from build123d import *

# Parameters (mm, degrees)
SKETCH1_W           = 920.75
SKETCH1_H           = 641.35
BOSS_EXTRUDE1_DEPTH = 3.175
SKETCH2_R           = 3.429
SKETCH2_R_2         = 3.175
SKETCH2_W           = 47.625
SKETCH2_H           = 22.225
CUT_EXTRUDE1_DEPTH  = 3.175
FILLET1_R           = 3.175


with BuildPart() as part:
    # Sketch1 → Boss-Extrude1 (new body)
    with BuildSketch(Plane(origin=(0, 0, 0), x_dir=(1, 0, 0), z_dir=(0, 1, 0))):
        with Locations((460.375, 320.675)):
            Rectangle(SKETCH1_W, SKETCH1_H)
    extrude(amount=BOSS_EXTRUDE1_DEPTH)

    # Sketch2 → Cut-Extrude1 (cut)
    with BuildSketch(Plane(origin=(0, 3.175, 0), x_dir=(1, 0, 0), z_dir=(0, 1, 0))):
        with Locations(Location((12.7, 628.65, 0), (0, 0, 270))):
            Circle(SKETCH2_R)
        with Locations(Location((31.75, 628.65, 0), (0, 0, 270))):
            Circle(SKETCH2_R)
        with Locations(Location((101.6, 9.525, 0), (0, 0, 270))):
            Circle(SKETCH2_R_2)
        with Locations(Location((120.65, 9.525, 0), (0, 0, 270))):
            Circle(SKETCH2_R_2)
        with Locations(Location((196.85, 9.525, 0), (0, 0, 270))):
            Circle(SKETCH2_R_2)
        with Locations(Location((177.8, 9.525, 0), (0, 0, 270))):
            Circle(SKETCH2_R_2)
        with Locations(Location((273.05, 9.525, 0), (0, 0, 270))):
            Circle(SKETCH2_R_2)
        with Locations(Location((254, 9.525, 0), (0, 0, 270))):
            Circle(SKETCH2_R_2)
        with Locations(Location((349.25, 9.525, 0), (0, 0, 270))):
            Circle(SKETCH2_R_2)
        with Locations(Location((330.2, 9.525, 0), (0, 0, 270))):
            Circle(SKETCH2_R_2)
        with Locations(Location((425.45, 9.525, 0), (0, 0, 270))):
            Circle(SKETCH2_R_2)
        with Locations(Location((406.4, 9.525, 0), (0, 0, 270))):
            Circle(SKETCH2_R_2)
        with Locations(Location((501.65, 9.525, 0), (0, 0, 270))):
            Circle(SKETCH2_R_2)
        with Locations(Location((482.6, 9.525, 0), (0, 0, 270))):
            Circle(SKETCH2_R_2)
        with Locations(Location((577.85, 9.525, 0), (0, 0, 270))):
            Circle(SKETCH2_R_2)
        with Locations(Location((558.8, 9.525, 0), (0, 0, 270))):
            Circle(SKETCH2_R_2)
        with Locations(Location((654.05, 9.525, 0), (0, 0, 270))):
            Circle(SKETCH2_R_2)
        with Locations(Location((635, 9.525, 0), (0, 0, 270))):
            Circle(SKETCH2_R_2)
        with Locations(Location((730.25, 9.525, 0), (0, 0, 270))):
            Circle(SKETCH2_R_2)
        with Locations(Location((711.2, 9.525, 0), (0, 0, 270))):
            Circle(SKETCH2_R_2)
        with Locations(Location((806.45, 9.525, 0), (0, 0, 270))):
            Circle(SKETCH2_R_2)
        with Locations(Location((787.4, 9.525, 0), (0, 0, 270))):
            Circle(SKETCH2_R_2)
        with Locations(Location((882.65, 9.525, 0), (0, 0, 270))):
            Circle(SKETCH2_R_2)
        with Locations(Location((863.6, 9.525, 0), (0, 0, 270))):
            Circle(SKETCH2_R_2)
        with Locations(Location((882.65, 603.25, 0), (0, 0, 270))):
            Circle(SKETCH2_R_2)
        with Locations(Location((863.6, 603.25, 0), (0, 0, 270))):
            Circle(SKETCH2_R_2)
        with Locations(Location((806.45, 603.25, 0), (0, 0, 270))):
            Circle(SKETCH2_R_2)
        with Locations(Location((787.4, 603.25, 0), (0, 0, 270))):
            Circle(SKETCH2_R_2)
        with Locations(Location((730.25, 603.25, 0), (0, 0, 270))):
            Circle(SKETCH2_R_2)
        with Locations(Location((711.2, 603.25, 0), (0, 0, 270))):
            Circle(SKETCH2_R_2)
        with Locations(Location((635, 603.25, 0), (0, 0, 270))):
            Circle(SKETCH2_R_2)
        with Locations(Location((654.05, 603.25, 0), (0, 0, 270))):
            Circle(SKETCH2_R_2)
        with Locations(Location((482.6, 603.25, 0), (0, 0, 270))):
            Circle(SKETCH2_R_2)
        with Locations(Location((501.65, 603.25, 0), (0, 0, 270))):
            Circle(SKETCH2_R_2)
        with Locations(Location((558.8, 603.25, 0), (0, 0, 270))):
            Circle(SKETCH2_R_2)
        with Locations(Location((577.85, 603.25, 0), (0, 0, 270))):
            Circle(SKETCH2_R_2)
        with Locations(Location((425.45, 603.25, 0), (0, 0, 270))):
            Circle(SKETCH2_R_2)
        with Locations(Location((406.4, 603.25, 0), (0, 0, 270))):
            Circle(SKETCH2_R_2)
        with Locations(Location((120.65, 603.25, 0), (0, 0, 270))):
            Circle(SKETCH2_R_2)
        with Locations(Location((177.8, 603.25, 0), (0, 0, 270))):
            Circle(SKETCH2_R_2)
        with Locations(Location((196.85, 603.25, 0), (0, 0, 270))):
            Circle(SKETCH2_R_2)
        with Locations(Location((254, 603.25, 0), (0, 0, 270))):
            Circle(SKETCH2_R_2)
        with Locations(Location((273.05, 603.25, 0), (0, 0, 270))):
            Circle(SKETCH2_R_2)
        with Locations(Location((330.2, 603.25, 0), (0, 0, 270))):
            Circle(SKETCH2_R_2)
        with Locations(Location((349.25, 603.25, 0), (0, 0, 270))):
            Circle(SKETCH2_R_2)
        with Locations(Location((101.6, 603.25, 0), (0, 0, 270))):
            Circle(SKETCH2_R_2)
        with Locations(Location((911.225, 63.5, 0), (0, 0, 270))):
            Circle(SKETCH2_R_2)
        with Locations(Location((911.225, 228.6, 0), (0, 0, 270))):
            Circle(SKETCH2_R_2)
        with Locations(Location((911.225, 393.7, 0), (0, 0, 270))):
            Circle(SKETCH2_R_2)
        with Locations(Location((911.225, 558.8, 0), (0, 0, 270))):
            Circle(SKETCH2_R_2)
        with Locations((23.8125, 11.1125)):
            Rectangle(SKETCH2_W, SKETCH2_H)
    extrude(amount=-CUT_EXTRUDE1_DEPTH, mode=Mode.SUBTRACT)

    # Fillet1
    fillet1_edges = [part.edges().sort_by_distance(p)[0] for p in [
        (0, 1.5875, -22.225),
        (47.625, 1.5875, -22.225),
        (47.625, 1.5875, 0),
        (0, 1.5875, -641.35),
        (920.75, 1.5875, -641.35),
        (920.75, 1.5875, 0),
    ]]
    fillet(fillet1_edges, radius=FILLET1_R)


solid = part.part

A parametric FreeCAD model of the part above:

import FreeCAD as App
import Part
import Sketcher

V = App.Vector
Q = App.Units.Quantity


def edges_at(feature, points):
    """Names of the edges that pass closest to the given points."""
    edges = feature.Shape.Edges
    near = lambda p: min(range(len(edges)), key=lambda i: edges[i].distToShape(Part.Vertex(*p))[0])
    return sorted({f"Edge{near(p) + 1}" for p in points})

doc = App.newDocument("Part")
body = doc.addObject("PartDesign::Body", "Body")

# Sketch on XZ plane
sketch1 = doc.addObject("Sketcher::SketchObject", "Sketch")
body.addObject(sketch1)
sketch1.AttachmentSupport = (doc.XZ_Plane, [""])
sketch1.MapMode = "FlatFace"
sketch1.addGeometry(Part.LineSegment(V(0, -641, 0), V(0, 0, 0)), False)
sketch1.addGeometry(Part.LineSegment(V(0, 0, 0), V(921, 0, 0)), False)
sketch1.addGeometry(Part.LineSegment(V(921, 0, 0), V(921, -641, 0)), False)
sketch1.addGeometry(Part.LineSegment(V(921, -641, 0), V(0, -641, 0)), False)
sketch1.addConstraint(Sketcher.Constraint("Coincident", 0, 2, 1, 1))
sketch1.addConstraint(Sketcher.Constraint("Coincident", 1, 2, 2, 1))
sketch1.addConstraint(Sketcher.Constraint("Coincident", 2, 2, 3, 1))
sketch1.addConstraint(Sketcher.Constraint("Coincident", 3, 2, 0, 1))
sketch1.addConstraint(Sketcher.Constraint("Vertical", 0))
sketch1.addConstraint(Sketcher.Constraint("Horizontal", 1))
sketch1.addConstraint(Sketcher.Constraint("Vertical", 2))
sketch1.addConstraint(Sketcher.Constraint("Horizontal", 3))
sketch1.addConstraint(Sketcher.Constraint("Coincident", 0, 2, -1, 1))
sketch1.addConstraint(Sketcher.Constraint("DistanceX", 1, 1, 1, 2, Q("36.25 in")))
sketch1.addConstraint(Sketcher.Constraint("DistanceY", 0, 1, 0, 2, Q("25.25 in")))
pad1 = doc.addObject("PartDesign::Pad", "Pad")
body.addObject(pad1)
pad1.Profile = sketch1
pad1.Length = Q("0.125 in")
pad1.Reversed = True

# Sketch on XZ plane
sketch2 = doc.addObject("Sketcher::SketchObject", "Sketch001")
body.addObject(sketch2)
sketch2.AttachmentSupport = (doc.XZ_Plane, [""])
sketch2.MapMode = "FlatFace"
sketch2.AttachmentOffset = App.Placement(V(0, 0, -0.125 * 25.4), App.Rotation())
sketch2.addGeometry(Part.Circle(V(12.7, -628.6, 0), V(0, 0, 1), 3.4), False)
sketch2.addGeometry(Part.Circle(V(31.8, -628.6, 0), V(0, 0, 1), 3.4), False)
sketch2.addGeometry(Part.Circle(V(101.6, -9.5, 0), V(0, 0, 1), 3.2), False)
sketch2.addGeometry(Part.Circle(V(120.7, -9.5, 0), V(0, 0, 1), 3.2), False)
sketch2.addGeometry(Part.Circle(V(196.8, -9.5, 0), V(0, 0, 1), 3.2), False)
sketch2.addGeometry(Part.Circle(V(177.8, -9.5, 0), V(0, 0, 1), 3.2), False)
sketch2.addGeometry(Part.Circle(V(273.1, -9.5, 0), V(0, 0, 1), 3.2), False)
sketch2.addGeometry(Part.Circle(V(254, -9.5, 0), V(0, 0, 1), 3.2), False)
sketch2.addGeometry(Part.Circle(V(349.2, -9.5, 0), V(0, 0, 1), 3.2), False)
sketch2.addGeometry(Part.Circle(V(330.2, -9.5, 0), V(0, 0, 1), 3.2), False)
sketch2.addGeometry(Part.Circle(V(425.4, -9.5, 0), V(0, 0, 1), 3.2), False)
sketch2.addGeometry(Part.Circle(V(406.4, -9.5, 0), V(0, 0, 1), 3.2), False)
sketch2.addGeometry(Part.Circle(V(501.6, -9.5, 0), V(0, 0, 1), 3.2), False)
sketch2.addGeometry(Part.Circle(V(482.6, -9.5, 0), V(0, 0, 1), 3.2), False)
sketch2.addGeometry(Part.Circle(V(577.9, -9.5, 0), V(0, 0, 1), 3.2), False)
sketch2.addGeometry(Part.Circle(V(558.8, -9.5, 0), V(0, 0, 1), 3.2), False)
sketch2.addGeometry(Part.Circle(V(654, -9.5, 0), V(0, 0, 1), 3.2), False)
sketch2.addGeometry(Part.Circle(V(635, -9.5, 0), V(0, 0, 1), 3.2), False)
sketch2.addGeometry(Part.Circle(V(730.2, -9.5, 0), V(0, 0, 1), 3.2), False)
sketch2.addGeometry(Part.Circle(V(711.2, -9.5, 0), V(0, 0, 1), 3.2), False)
sketch2.addGeometry(Part.Circle(V(806.5, -9.5, 0), V(0, 0, 1), 3.2), False)
sketch2.addGeometry(Part.Circle(V(787.4, -9.5, 0), V(0, 0, 1), 3.2), False)
sketch2.addGeometry(Part.Circle(V(882.6, -9.5, 0), V(0, 0, 1), 3.2), False)
sketch2.addGeometry(Part.Circle(V(863.6, -9.5, 0), V(0, 0, 1), 3.2), False)
sketch2.addGeometry(Part.Circle(V(882.6, -603.2, 0), V(0, 0, 1), 3.2), False)
sketch2.addGeometry(Part.Circle(V(863.6, -603.2, 0), V(0, 0, 1), 3.2), False)
sketch2.addGeometry(Part.Circle(V(806.5, -603.2, 0), V(0, 0, 1), 3.2), False)
sketch2.addGeometry(Part.Circle(V(787.4, -603.2, 0), V(0, 0, 1), 3.2), False)
sketch2.addGeometry(Part.Circle(V(730.2, -603.2, 0), V(0, 0, 1), 3.2), False)
sketch2.addGeometry(Part.Circle(V(711.2, -603.2, 0), V(0, 0, 1), 3.2), False)
sketch2.addGeometry(Part.Circle(V(635, -603.2, 0), V(0, 0, 1), 3.2), False)
sketch2.addGeometry(Part.Circle(V(654, -603.2, 0), V(0, 0, 1), 3.2), False)
sketch2.addGeometry(Part.Circle(V(482.6, -603.2, 0), V(0, 0, 1), 3.2), False)
sketch2.addGeometry(Part.Circle(V(501.6, -603.2, 0), V(0, 0, 1), 3.2), False)
sketch2.addGeometry(Part.Circle(V(558.8, -603.2, 0), V(0, 0, 1), 3.2), False)
sketch2.addGeometry(Part.Circle(V(577.9, -603.2, 0), V(0, 0, 1), 3.2), False)
sketch2.addGeometry(Part.Circle(V(425.4, -603.2, 0), V(0, 0, 1), 3.2), False)
sketch2.addGeometry(Part.Circle(V(406.4, -603.2, 0), V(0, 0, 1), 3.2), False)
sketch2.addGeometry(Part.Circle(V(120.7, -603.2, 0), V(0, 0, 1), 3.2), False)
sketch2.addGeometry(Part.Circle(V(177.8, -603.2, 0), V(0, 0, 1), 3.2), False)
sketch2.addGeometry(Part.Circle(V(196.8, -603.2, 0), V(0, 0, 1), 3.2), False)
sketch2.addGeometry(Part.Circle(V(254, -603.2, 0), V(0, 0, 1), 3.2), False)
sketch2.addGeometry(Part.Circle(V(273.1, -603.2, 0), V(0, 0, 1), 3.2), False)
sketch2.addGeometry(Part.Circle(V(330.2, -603.2, 0), V(0, 0, 1), 3.2), False)
sketch2.addGeometry(Part.Circle(V(349.2, -603.2, 0), V(0, 0, 1), 3.2), False)
sketch2.addGeometry(Part.Circle(V(101.6, -603.2, 0), V(0, 0, 1), 3.2), False)
sketch2.addGeometry(Part.Circle(V(911.2, -63.5, 0), V(0, 0, 1), 3.2), False)
sketch2.addGeometry(Part.Circle(V(911.2, -228.6, 0), V(0, 0, 1), 3.2), False)
sketch2.addGeometry(Part.Circle(V(911.2, -393.7, 0), V(0, 0, 1), 3.2), False)
sketch2.addGeometry(Part.Circle(V(911.2, -558.8, 0), V(0, 0, 1), 3.2), False)
sketch2.addGeometry(Part.LineSegment(V(0, -22.2, 0), V(0, 0, 0)), False)
sketch2.addGeometry(Part.LineSegment(V(0, 0, 0), V(47.6, 0, 0)), False)
sketch2.addGeometry(Part.LineSegment(V(47.6, 0, 0), V(47.6, -22.2, 0)), False)
sketch2.addGeometry(Part.LineSegment(V(47.6, -22.2, 0), V(0, -22.2, 0)), False)
sketch2.addConstraint(Sketcher.Constraint("Coincident", 50, 2, 51, 1))
sketch2.addConstraint(Sketcher.Constraint("Coincident", 51, 2, 52, 1))
sketch2.addConstraint(Sketcher.Constraint("Coincident", 52, 2, 53, 1))
sketch2.addConstraint(Sketcher.Constraint("Coincident", 53, 2, 50, 1))
sketch2.addConstraint(Sketcher.Constraint("Vertical", 50))
sketch2.addConstraint(Sketcher.Constraint("Horizontal", 51))
sketch2.addConstraint(Sketcher.Constraint("Vertical", 52))
sketch2.addConstraint(Sketcher.Constraint("Horizontal", 53))
sketch2.addConstraint(Sketcher.Constraint("Coincident", 50, 2, -1, 1))
sketch2.addConstraint(Sketcher.Constraint("Equal", 0, 1))
sketch2.addConstraint(Sketcher.Constraint("Equal", 2, 3))
sketch2.addConstraint(Sketcher.Constraint("Equal", 3, 4))
sketch2.addConstraint(Sketcher.Constraint("Equal", 4, 5))
sketch2.addConstraint(Sketcher.Constraint("Equal", 5, 6))
sketch2.addConstraint(Sketcher.Constraint("Equal", 6, 7))
sketch2.addConstraint(Sketcher.Constraint("Equal", 7, 8))
sketch2.addConstraint(Sketcher.Constraint("Equal", 8, 9))
sketch2.addConstraint(Sketcher.Constraint("Equal", 9, 10))
sketch2.addConstraint(Sketcher.Constraint("Equal", 10, 11))
sketch2.addConstraint(Sketcher.Constraint("Equal", 11, 12))
sketch2.addConstraint(Sketcher.Constraint("Equal", 12, 13))
sketch2.addConstraint(Sketcher.Constraint("Equal", 13, 14))
sketch2.addConstraint(Sketcher.Constraint("Equal", 14, 15))
sketch2.addConstraint(Sketcher.Constraint("Equal", 15, 16))
sketch2.addConstraint(Sketcher.Constraint("Equal", 16, 17))
sketch2.addConstraint(Sketcher.Constraint("Equal", 17, 18))
sketch2.addConstraint(Sketcher.Constraint("Equal", 18, 19))
sketch2.addConstraint(Sketcher.Constraint("Equal", 19, 20))
sketch2.addConstraint(Sketcher.Constraint("Equal", 20, 21))
sketch2.addConstraint(Sketcher.Constraint("Equal", 21, 22))
sketch2.addConstraint(Sketcher.Constraint("Equal", 22, 23))
sketch2.addConstraint(Sketcher.Constraint("Equal", 23, 24))
sketch2.addConstraint(Sketcher.Constraint("Equal", 24, 25))
sketch2.addConstraint(Sketcher.Constraint("Equal", 25, 26))
sketch2.addConstraint(Sketcher.Constraint("Equal", 26, 27))
sketch2.addConstraint(Sketcher.Constraint("Equal", 27, 28))
sketch2.addConstraint(Sketcher.Constraint("Equal", 28, 29))
sketch2.addConstraint(Sketcher.Constraint("Equal", 29, 30))
sketch2.addConstraint(Sketcher.Constraint("Equal", 30, 31))
sketch2.addConstraint(Sketcher.Constraint("Equal", 31, 32))
sketch2.addConstraint(Sketcher.Constraint("Equal", 32, 33))
sketch2.addConstraint(Sketcher.Constraint("Equal", 33, 34))
sketch2.addConstraint(Sketcher.Constraint("Equal", 34, 35))
sketch2.addConstraint(Sketcher.Constraint("Equal", 35, 36))
sketch2.addConstraint(Sketcher.Constraint("Equal", 36, 37))
sketch2.addConstraint(Sketcher.Constraint("Equal", 37, 38))
sketch2.addConstraint(Sketcher.Constraint("Equal", 38, 39))
sketch2.addConstraint(Sketcher.Constraint("Equal", 39, 40))
sketch2.addConstraint(Sketcher.Constraint("Equal", 40, 41))
sketch2.addConstraint(Sketcher.Constraint("Equal", 41, 42))
sketch2.addConstraint(Sketcher.Constraint("Equal", 42, 43))
sketch2.addConstraint(Sketcher.Constraint("Equal", 43, 44))
sketch2.addConstraint(Sketcher.Constraint("Equal", 44, 45))
sketch2.addConstraint(Sketcher.Constraint("Equal", 45, 46))
sketch2.addConstraint(Sketcher.Constraint("Equal", 46, 47))
sketch2.addConstraint(Sketcher.Constraint("Equal", 47, 48))
sketch2.addConstraint(Sketcher.Constraint("Equal", 48, 49))
sketch2.addConstraint(Sketcher.Constraint("Horizontal", 0, 3, 1, 3))
sketch2.addConstraint(Sketcher.Constraint("Horizontal", 2, 3, 3, 3))
sketch2.addConstraint(Sketcher.Constraint("Horizontal", 3, 3, 4, 3))
sketch2.addConstraint(Sketcher.Constraint("Horizontal", 4, 3, 5, 3))
sketch2.addConstraint(Sketcher.Constraint("Horizontal", 5, 3, 6, 3))
sketch2.addConstraint(Sketcher.Constraint("Horizontal", 6, 3, 7, 3))
sketch2.addConstraint(Sketcher.Constraint("Horizontal", 7, 3, 8, 3))
sketch2.addConstraint(Sketcher.Constraint("Horizontal", 8, 3, 9, 3))
sketch2.addConstraint(Sketcher.Constraint("Horizontal", 9, 3, 10, 3))
sketch2.addConstraint(Sketcher.Constraint("Horizontal", 10, 3, 11, 3))
sketch2.addConstraint(Sketcher.Constraint("Horizontal", 11, 3, 12, 3))
sketch2.addConstraint(Sketcher.Constraint("Horizontal", 12, 3, 13, 3))
sketch2.addConstraint(Sketcher.Constraint("Horizontal", 13, 3, 14, 3))
sketch2.addConstraint(Sketcher.Constraint("Horizontal", 14, 3, 15, 3))
sketch2.addConstraint(Sketcher.Constraint("Horizontal", 15, 3, 16, 3))
sketch2.addConstraint(Sketcher.Constraint("Horizontal", 16, 3, 17, 3))
sketch2.addConstraint(Sketcher.Constraint("Horizontal", 17, 3, 18, 3))
sketch2.addConstraint(Sketcher.Constraint("Horizontal", 18, 3, 19, 3))
sketch2.addConstraint(Sketcher.Constraint("Horizontal", 19, 3, 20, 3))
sketch2.addConstraint(Sketcher.Constraint("Horizontal", 20, 3, 21, 3))
sketch2.addConstraint(Sketcher.Constraint("Horizontal", 21, 3, 22, 3))
sketch2.addConstraint(Sketcher.Constraint("Horizontal", 22, 3, 23, 3))
sketch2.addConstraint(Sketcher.Constraint("Horizontal", 24, 3, 25, 3))
sketch2.addConstraint(Sketcher.Constraint("Horizontal", 25, 3, 26, 3))
sketch2.addConstraint(Sketcher.Constraint("Horizontal", 26, 3, 27, 3))
sketch2.addConstraint(Sketcher.Constraint("Horizontal", 27, 3, 28, 3))
sketch2.addConstraint(Sketcher.Constraint("Horizontal", 28, 3, 29, 3))
sketch2.addConstraint(Sketcher.Constraint("Horizontal", 29, 3, 30, 3))
sketch2.addConstraint(Sketcher.Constraint("Horizontal", 30, 3, 31, 3))
sketch2.addConstraint(Sketcher.Constraint("Horizontal", 31, 3, 32, 3))
sketch2.addConstraint(Sketcher.Constraint("Horizontal", 32, 3, 33, 3))
sketch2.addConstraint(Sketcher.Constraint("Horizontal", 33, 3, 34, 3))
sketch2.addConstraint(Sketcher.Constraint("Horizontal", 34, 3, 35, 3))
sketch2.addConstraint(Sketcher.Constraint("Horizontal", 35, 3, 36, 3))
sketch2.addConstraint(Sketcher.Constraint("Horizontal", 36, 3, 37, 3))
sketch2.addConstraint(Sketcher.Constraint("Horizontal", 37, 3, 38, 3))
sketch2.addConstraint(Sketcher.Constraint("Horizontal", 38, 3, 39, 3))
sketch2.addConstraint(Sketcher.Constraint("Horizontal", 39, 3, 40, 3))
sketch2.addConstraint(Sketcher.Constraint("Horizontal", 40, 3, 41, 3))
sketch2.addConstraint(Sketcher.Constraint("Horizontal", 41, 3, 42, 3))
sketch2.addConstraint(Sketcher.Constraint("Horizontal", 42, 3, 43, 3))
sketch2.addConstraint(Sketcher.Constraint("Horizontal", 43, 3, 44, 3))
sketch2.addConstraint(Sketcher.Constraint("Horizontal", 44, 3, 45, 3))
sketch2.addConstraint(Sketcher.Constraint("Vertical", 22, 3, 24, 3))
sketch2.addConstraint(Sketcher.Constraint("Vertical", 23, 3, 25, 3))
sketch2.addConstraint(Sketcher.Constraint("Vertical", 20, 3, 26, 3))
sketch2.addConstraint(Sketcher.Constraint("Vertical", 21, 3, 27, 3))
sketch2.addConstraint(Sketcher.Constraint("Vertical", 18, 3, 28, 3))
sketch2.addConstraint(Sketcher.Constraint("Vertical", 19, 3, 29, 3))
sketch2.addConstraint(Sketcher.Constraint("Vertical", 17, 3, 30, 3))
sketch2.addConstraint(Sketcher.Constraint("Vertical", 16, 3, 31, 3))
sketch2.addConstraint(Sketcher.Constraint("Vertical", 13, 3, 32, 3))
sketch2.addConstraint(Sketcher.Constraint("Vertical", 12, 3, 33, 3))
sketch2.addConstraint(Sketcher.Constraint("Vertical", 15, 3, 34, 3))
sketch2.addConstraint(Sketcher.Constraint("Vertical", 14, 3, 35, 3))
sketch2.addConstraint(Sketcher.Constraint("Vertical", 10, 3, 36, 3))
sketch2.addConstraint(Sketcher.Constraint("Vertical", 11, 3, 37, 3))
sketch2.addConstraint(Sketcher.Constraint("Vertical", 3, 3, 38, 3))
sketch2.addConstraint(Sketcher.Constraint("Vertical", 5, 3, 39, 3))
sketch2.addConstraint(Sketcher.Constraint("Vertical", 4, 3, 40, 3))
sketch2.addConstraint(Sketcher.Constraint("Vertical", 7, 3, 41, 3))
sketch2.addConstraint(Sketcher.Constraint("Vertical", 6, 3, 42, 3))
sketch2.addConstraint(Sketcher.Constraint("Vertical", 9, 3, 43, 3))
sketch2.addConstraint(Sketcher.Constraint("Vertical", 8, 3, 44, 3))
sketch2.addConstraint(Sketcher.Constraint("Vertical", 2, 3, 45, 3))
sketch2.addConstraint(Sketcher.Constraint("Vertical", 46, 3, 47, 3))
sketch2.addConstraint(Sketcher.Constraint("Vertical", 47, 3, 48, 3))
sketch2.addConstraint(Sketcher.Constraint("Vertical", 48, 3, 49, 3))
sketch2.addConstraint(Sketcher.Constraint("Diameter", 0, Q("0.27 in")))
sketch2.addConstraint(Sketcher.Constraint("Diameter", 2, Q("0.25 in")))
sketch2.addConstraint(Sketcher.Constraint("DistanceX", -1, 1, 2, 3, Q("4 in")))
sketch2.addConstraint(Sketcher.Constraint("DistanceX", -1, 1, 5, 3, Q("7 in")))
sketch2.addConstraint(Sketcher.Constraint("DistanceX", -1, 1, 7, 3, Q("10 in")))
sketch2.addConstraint(Sketcher.Constraint("DistanceX", -1, 1, 9, 3, Q("13 in")))
sketch2.addConstraint(Sketcher.Constraint("DistanceX", -1, 1, 11, 3, Q("16 in")))
sketch2.addConstraint(Sketcher.Constraint("DistanceX", -1, 1, 13, 3, Q("19 in")))
sketch2.addConstraint(Sketcher.Constraint("DistanceX", -1, 1, 15, 3, Q("22 in")))
sketch2.addConstraint(Sketcher.Constraint("DistanceX", -1, 1, 17, 3, Q("25 in")))
sketch2.addConstraint(Sketcher.Constraint("DistanceX", -1, 1, 19, 3, Q("28 in")))
sketch2.addConstraint(Sketcher.Constraint("DistanceX", -1, 1, 21, 3, Q("31 in")))
sketch2.addConstraint(Sketcher.Constraint("DistanceX", -1, 1, 23, 3, Q("34 in")))
sketch2.addConstraint(Sketcher.Constraint("DistanceY", 47, 3, -1, 1, Q("9 in")))
sketch2.addConstraint(Sketcher.Constraint("DistanceY", 49, 3, -1, 1, Q("22 in")))
sketch2.addConstraint(Sketcher.Constraint("DistanceX", 3, 3, 4, 3, Q("3 in")))
sketch2.addConstraint(Sketcher.Constraint("DistanceX", 4, 3, 6, 3, Q("3 in")))
sketch2.addConstraint(Sketcher.Constraint("DistanceX", 6, 3, 8, 3, Q("3 in")))
sketch2.addConstraint(Sketcher.Constraint("DistanceX", 8, 3, 10, 3, Q("3 in")))
sketch2.addConstraint(Sketcher.Constraint("DistanceX", 10, 3, 12, 3, Q("3 in")))
sketch2.addConstraint(Sketcher.Constraint("DistanceX", 12, 3, 14, 3, Q("3 in")))
sketch2.addConstraint(Sketcher.Constraint("DistanceX", 14, 3, 16, 3, Q("3 in")))
sketch2.addConstraint(Sketcher.Constraint("DistanceX", 16, 3, 18, 3, Q("3 in")))
sketch2.addConstraint(Sketcher.Constraint("DistanceX", 18, 3, 20, 3, Q("3 in")))
sketch2.addConstraint(Sketcher.Constraint("DistanceX", 20, 3, 22, 3, Q("3 in")))
sketch2.addConstraint(Sketcher.Constraint("DistanceY", 1, 3, 38, 3, Q("1 in")))
sketch2.addConstraint(Sketcher.Constraint("DistanceX", -1, 1, 0, 3, Q("0.5 in")))
sketch2.addConstraint(Sketcher.Constraint("DistanceY", 46, 3, -1, 1, Q("2.5 in")))
sketch2.addConstraint(Sketcher.Constraint("DistanceY", 48, 3, -1, 1, Q("15.5 in")))
sketch2.addConstraint(Sketcher.Constraint("DistanceX", 1, 3, 3, 3, Q("3.5 in")))
sketch2.addConstraint(Sketcher.Constraint("DistanceY", 52, 2, 2, 3, Q("0.5 in")))
sketch2.addConstraint(Sketcher.Constraint("DistanceX", 51, 1, 51, 2, Q("1.875 in")))
sketch2.addConstraint(Sketcher.Constraint("DistanceY", 50, 1, 50, 2, Q("0.875 in")))
sketch2.addConstraint(Sketcher.Constraint("DistanceY", 0, 3, -1, 1, Q("24.75 in")))
sketch2.addConstraint(Sketcher.Constraint("DistanceX", -1, 1, 1, 3, Q("1.25 in")))
sketch2.addConstraint(Sketcher.Constraint("DistanceX", -1, 1, 46, 3, Q("35.875 in")))
pocket1 = doc.addObject("PartDesign::Pocket", "Pocket")
body.addObject(pocket1)
pocket1.Profile = sketch2
pocket1.Length = Q("0.125 in")
pocket1.Reversed = True
doc.recompute()

fillet = doc.addObject("PartDesign::Fillet", "Fillet")
body.addObject(fillet)
fillet.Base = (pocket1, edges_at(pocket1, [
    (0, 1.587, -22.225),
    (47.625, 1.587, -22.225),
    (47.625, 1.587, 0),
    (0, 1.587, -641.35),
    (920.75, 1.587, -641.35),
    (920.75, 1.587, 0),
]))
fillet.Radius = Q("0.125 in")

doc.recompute()
